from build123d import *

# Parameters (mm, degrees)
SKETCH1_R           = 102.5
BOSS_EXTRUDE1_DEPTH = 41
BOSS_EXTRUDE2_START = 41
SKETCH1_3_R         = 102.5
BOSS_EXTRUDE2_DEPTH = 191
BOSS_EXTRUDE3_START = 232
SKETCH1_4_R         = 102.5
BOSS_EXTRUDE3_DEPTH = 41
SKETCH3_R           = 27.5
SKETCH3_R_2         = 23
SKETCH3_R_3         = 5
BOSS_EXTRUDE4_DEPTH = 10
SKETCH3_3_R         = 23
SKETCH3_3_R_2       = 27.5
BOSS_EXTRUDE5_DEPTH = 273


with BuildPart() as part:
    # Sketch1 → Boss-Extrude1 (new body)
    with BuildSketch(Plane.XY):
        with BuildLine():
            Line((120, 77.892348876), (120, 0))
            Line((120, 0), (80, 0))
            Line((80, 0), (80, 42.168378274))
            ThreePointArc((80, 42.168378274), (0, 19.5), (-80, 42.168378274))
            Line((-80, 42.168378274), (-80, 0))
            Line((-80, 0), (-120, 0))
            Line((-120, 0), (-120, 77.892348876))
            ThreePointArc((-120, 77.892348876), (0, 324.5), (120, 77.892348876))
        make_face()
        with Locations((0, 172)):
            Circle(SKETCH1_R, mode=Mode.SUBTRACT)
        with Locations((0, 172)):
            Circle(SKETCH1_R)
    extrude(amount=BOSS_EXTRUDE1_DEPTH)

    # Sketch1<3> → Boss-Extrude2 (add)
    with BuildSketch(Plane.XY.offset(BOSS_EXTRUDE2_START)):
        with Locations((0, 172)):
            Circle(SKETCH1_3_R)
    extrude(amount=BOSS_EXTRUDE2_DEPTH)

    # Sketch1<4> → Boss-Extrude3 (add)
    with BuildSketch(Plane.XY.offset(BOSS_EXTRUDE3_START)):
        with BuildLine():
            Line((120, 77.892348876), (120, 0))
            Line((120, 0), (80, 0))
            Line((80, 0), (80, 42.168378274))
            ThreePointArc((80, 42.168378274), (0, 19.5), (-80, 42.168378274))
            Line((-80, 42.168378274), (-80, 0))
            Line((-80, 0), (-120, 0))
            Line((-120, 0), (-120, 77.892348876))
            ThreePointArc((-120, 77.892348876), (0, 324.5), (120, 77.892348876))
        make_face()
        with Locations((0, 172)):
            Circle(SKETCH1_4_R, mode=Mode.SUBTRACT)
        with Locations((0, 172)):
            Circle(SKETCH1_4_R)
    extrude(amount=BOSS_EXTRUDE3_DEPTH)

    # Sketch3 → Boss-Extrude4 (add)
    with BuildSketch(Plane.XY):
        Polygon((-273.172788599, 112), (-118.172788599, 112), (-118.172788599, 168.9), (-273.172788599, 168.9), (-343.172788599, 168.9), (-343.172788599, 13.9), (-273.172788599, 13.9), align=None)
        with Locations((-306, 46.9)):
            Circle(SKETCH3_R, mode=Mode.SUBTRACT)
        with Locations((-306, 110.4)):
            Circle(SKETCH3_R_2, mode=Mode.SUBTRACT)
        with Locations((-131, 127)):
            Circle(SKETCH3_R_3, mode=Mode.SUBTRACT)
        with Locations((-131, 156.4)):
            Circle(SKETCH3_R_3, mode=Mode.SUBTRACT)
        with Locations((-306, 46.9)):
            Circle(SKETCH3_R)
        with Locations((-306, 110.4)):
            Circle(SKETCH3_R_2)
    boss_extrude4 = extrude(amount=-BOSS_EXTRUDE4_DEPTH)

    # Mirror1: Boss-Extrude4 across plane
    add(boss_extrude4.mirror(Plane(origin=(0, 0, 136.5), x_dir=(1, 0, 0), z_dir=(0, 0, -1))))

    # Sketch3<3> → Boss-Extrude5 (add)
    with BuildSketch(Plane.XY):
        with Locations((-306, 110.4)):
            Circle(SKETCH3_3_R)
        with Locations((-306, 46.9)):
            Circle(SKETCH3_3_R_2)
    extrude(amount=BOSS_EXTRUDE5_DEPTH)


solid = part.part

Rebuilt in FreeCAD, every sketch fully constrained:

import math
import FreeCAD as App
import Part
import Sketcher
from FreeCAD import Vector
Q = App.Units.Quantity

doc = App.newDocument("Part")
body = doc.addObject("PartDesign::Body", "Body")

# Sketch on XY plane
sketch1 = body.newObject("Sketcher::SketchObject", "Sketch")
sketch1.AttachmentSupport = (doc.getObject("XY_Plane"), [""])
sketch1.MapMode = "FlatFace"
sketch1.addGeometry([
    Part.LineSegment(Vector(120, 0, 0), Vector(120, 78, 0)),  # 0
    Part.ArcOfCircle(Part.Circle(Vector(0, 172, 0), Vector(0, 0, 1), 152), math.radians(-38), math.radians(218)),  # 1
    Part.LineSegment(Vector(-120, 78, 0), Vector(-120, 0, 0)),  # 2
    Part.LineSegment(Vector(-120, 0, 0), Vector(-80, 0, 0)),  # 3
    Part.LineSegment(Vector(-80, 0, 0), Vector(-80, 42, 0)),  # 4
    Part.ArcOfCircle(Part.Circle(Vector(0, 172, 0), Vector(0, 0, 1), 152), math.radians(-122), math.radians(-58)),  # 5
    Part.LineSegment(Vector(80, 42, 0), Vector(80, 0, 0)),  # 6
    Part.LineSegment(Vector(80, 0, 0), Vector(120, 0, 0)),  # 7
], False)
sketch1.addConstraint([
    Sketcher.Constraint("Coincident", 0, 2, 1, 1),
    Sketcher.Constraint("Coincident", 1, 2, 2, 1),
    Sketcher.Constraint("Coincident", 2, 2, 3, 1),
    Sketcher.Constraint("Coincident", 3, 2, 4, 1),
    Sketcher.Constraint("Coincident", 4, 2, 5, 1),
    Sketcher.Constraint("Coincident", 5, 2, 6, 1),
    Sketcher.Constraint("Coincident", 6, 2, 7, 1),
    Sketcher.Constraint("Coincident", 7, 2, 0, 1),
    Sketcher.Constraint("Vertical", 0),
    Sketcher.Constraint("Vertical", 2),
    Sketcher.Constraint("Horizontal", 3),
    Sketcher.Constraint("Vertical", 4),
    Sketcher.Constraint("Vertical", 6),
    Sketcher.Constraint("Horizontal", 7),
    Sketcher.Constraint("Coincident", 5, 3, 1, 3),
    Sketcher.Constraint("Equal", 1, 5),
    Sketcher.Constraint("Symmetric", 3, 2, 6, 2, -1, 1),
    Sketcher.Constraint("Symmetric", 0, 2, 1, 2, -2),
    Sketcher.Constraint("PointOnObject", 2, 2, -1),
    Sketcher.Constraint("Radius", 1, Q("152.5 mm")),
    Sketcher.Constraint("DistanceX", 3, 1, 3, 2, Q("40 mm")),
    Sketcher.Constraint("DistanceY", -1, 1, 1, 3, Q("172 mm")),
    Sketcher.Constraint("DistanceX", -1, 1, 0, 2, Q("120 mm")),
])
pad1 = body.newObject("PartDesign::Pad", "Pad")
pad1.Profile = sketch1
pad1.Length = 41

# Sketch on XY plane
sketch2 = body.newObject("Sketcher::SketchObject", "Sketch001")
sketch2.AttachmentSupport = (doc.getObject("XY_Plane"), [""])
sketch2.MapMode = "FlatFace"
sketch2.AttachmentOffset = App.Placement(Vector(0, 0, 41), App.Rotation())
sketch2.addGeometry(Part.Circle(Vector(0, 172, 0), Vector(0, 0, 1), 102), False)
sketch2.addConstraint([
    Sketcher.Constraint("PointOnObject", 0, 3, -2),
    Sketcher.Constraint("Diameter", 0, Q("205 mm")),
    Sketcher.Constraint("DistanceY", -1, 1, 0, 3, Q("172 mm")),
])
pad2 = body.newObject("PartDesign::Pad", "Pad001")
pad2.Profile = sketch2
pad2.Length = 191

# Sketch on XY plane
sketch3 = body.newObject("Sketcher::SketchObject", "Sketch002")
sketch3.AttachmentSupport = (doc.getObject("XY_Plane"), [""])
sketch3.MapMode = "FlatFace"
sketch3.AttachmentOffset = App.Placement(Vector(0, 0, 232), App.Rotation())
sketch3.addGeometry([
    Part.LineSegment(Vector(120, 0, 0), Vector(120, 78, 0)),  # 0
    Part.ArcOfCircle(Part.Circle(Vector(0, 172, 0), Vector(0, 0, 1), 152), math.radians(-38), math.radians(218)),  # 1
    Part.LineSegment(Vector(-120, 78, 0), Vector(-120, 0, 0)),  # 2
    Part.LineSegment(Vector(-120, 0, 0), Vector(-80, 0, 0)),  # 3
    Part.LineSegment(Vector(-80, 0, 0), Vector(-80, 42, 0)),  # 4
    Part.ArcOfCircle(Part.Circle(Vector(0, 172, 0), Vector(0, 0, 1), 152), math.radians(-122), math.radians(-58)),  # 5
    Part.LineSegment(Vector(80, 42, 0), Vector(80, 0, 0)),  # 6
    Part.LineSegment(Vector(80, 0, 0), Vector(120, 0, 0)),  # 7
], False)
sketch3.addConstraint([
    Sketcher.Constraint("Coincident", 0, 2, 1, 1),
    Sketcher.Constraint("Coincident", 1, 2, 2, 1),
    Sketcher.Constraint("Coincident", 2, 2, 3, 1),
    Sketcher.Constraint("Coincident", 3, 2, 4, 1),
    Sketcher.Constraint("Coincident", 4, 2, 5, 1),
    Sketcher.Constraint("Coincident", 5, 2, 6, 1),
    Sketcher.Constraint("Coincident", 6, 2, 7, 1),
    Sketcher.Constraint("Coincident", 7, 2, 0, 1),
    Sketcher.Constraint("Vertical", 0),
    Sketcher.Constraint("Vertical", 2),
    Sketcher.Constraint("Horizontal", 3),
    Sketcher.Constraint("Vertical", 4),
    Sketcher.Constraint("Vertical", 6),
    Sketcher.Constraint("Horizontal", 7),
    Sketcher.Constraint("Coincident", 5, 3, 1, 3),
    Sketcher.Constraint("Equal", 1, 5),
    Sketcher.Constraint("Symmetric", 3, 2, 6, 2, -1, 1),
    Sketcher.Constraint("Symmetric", 0, 2, 1, 2, -2),
    Sketcher.Constraint("PointOnObject", 2, 2, -1),
    Sketcher.Constraint("Radius", 1, Q("152.5 mm")),
    Sketcher.Constraint("DistanceX", 3, 1, 3, 2, Q("40 mm")),
    Sketcher.Constraint("DistanceY", -1, 1, 1, 3, Q("172 mm")),
    Sketcher.Constraint("DistanceX", -1, 1, 0, 2, Q("120 mm")),
])
pad3 = body.newObject("PartDesign::Pad", "Pad002")
pad3.Profile = sketch3
pad3.Length = 41

# Sketch on XY plane
sketch4 = body.newObject("Sketcher::SketchObject", "Sketch003")
sketch4.AttachmentSupport = (doc.getObject("XY_Plane"), [""])
sketch4.MapMode = "FlatFace"
sketch4.addGeometry([
    Part.LineSegment(Vector(-273, 112, 0), Vector(-118, 112, 0)),  # 0
    Part.LineSegment(Vector(-118, 112, 0), Vector(-118, 169, 0)),  # 1
    Part.LineSegment(Vector(-118, 169, 0), Vector(-343, 169, 0)),  # 2
    Part.LineSegment(Vector(-343, 169, 0), Vector(-343, 14, 0)),  # 3
    Part.LineSegment(Vector(-343, 14, 0), Vector(-273, 14, 0)),  # 4
    Part.LineSegment(Vector(-273, 14, 0), Vector(-273, 112, 0)),  # 5
    Part.Circle(Vector(-131, 127, 0), Vector(0, 0, 1), 5),  # 6
    Part.Circle(Vector(-131, 156, 0), Vector(0, 0, 1), 5),  # 7
], False)
sketch4.addConstraint([
    Sketcher.Constraint("Coincident", 0, 2, 1, 1),
    Sketcher.Constraint("Coincident", 1, 2, 2, 1),
    Sketcher.Constraint("Coincident", 2, 2, 3, 1),
    Sketcher.Constraint("Coincident", 3, 2, 4, 1),
    Sketcher.Constraint("Coincident", 4, 2, 5, 1),
    Sketcher.Constraint("Coincident", 5, 2, 0, 1),
    Sketcher.Constraint("Horizontal", 0),
    Sketcher.Constraint("Vertical", 1),
    Sketcher.Constraint("Horizontal", 2),
    Sketcher.Constraint("Vertical", 3),
    Sketcher.Constraint("Horizontal", 4),
    Sketcher.Constraint("Vertical", 5),
    Sketcher.Constraint("Equal", 6, 7),
    Sketcher.Constraint("Vertical", 6, 3, 7, 3),
    Sketcher.Constraint("Equal", 0, 3),
    Sketcher.Constraint("Diameter", 6, Q("10 mm")),
    Sketcher.Constraint("DistanceX", 0, 1, 0, 2, Q("155 mm")),
    Sketcher.Constraint("DistanceX", 2, 2, 2, 1, Q("225 mm")),
    Sketcher.Constraint("DistanceY", 1, 1, 1, 2, Q("56.9 mm")),
    Sketcher.Constraint("DistanceX", 6, 3, -1, 1, Q("131 mm")),
    Sketcher.Constraint("DistanceY", -1, 1, 6, 3, Q("127 mm")),
    Sketcher.Constraint("DistanceY", -1, 1, 0, 2, Q("112 mm")),
    Sketcher.Constraint("DistanceY", -1, 1, 7, 3, Q("156.4 mm")),
    Sketcher.Constraint("DistanceX", 0, 2, -1, 1, Q("118.172789 mm")),
])
pad4 = body.newObject("PartDesign::Pad", "Pad003")
pad4.Profile = sketch4
pad4.Length = 10
pad4.Reversed = True
doc.recompute()

datumplane = body.newObject("PartDesign::Plane", "DatumPlane")
datumplane.AttachmentSupport = (doc.getObject("XY_Plane"), [""])
datumplane.MapMode = "FlatFace"
datumplane.AttachmentOffset = App.Placement(Vector(0, 0, 136.5), App.Rotation())
mirrored = body.newObject("PartDesign::Mirrored", "Mirrored")
mirrored.Originals = [pad4]
mirrored.MirrorPlane = (datumplane, [""])
body.Tip = mirrored

# Sketch on XY plane
sketch5 = body.newObject("Sketcher::SketchObject", "Sketch004")
sketch5.AttachmentSupport = (doc.getObject("XY_Plane"), [""])
sketch5.MapMode = "FlatFace"
sketch5.addGeometry([
    Part.Circle(Vector(-306, 110, 0), Vector(0, 0, 1), 23),
    Part.Circle(Vector(-306, 47, 0), Vector(0, 0, 1), 28),
], False)
sketch5.addConstraint([
    Sketcher.Constraint("Vertical", 0, 3, 1, 3),
    Sketcher.Constraint("Diameter", 0, Q("46 mm")),
    Sketcher.Constraint("Diameter", 1, Q("55 mm")),
    Sketcher.Constraint("DistanceX", 0, 3, -1, 1, Q("306 mm")),
    Sketcher.Constraint("DistanceY", -1, 1, 0, 3, Q("110.4 mm")),
    Sketcher.Constraint("DistanceY", -1, 1, 1, 3, Q("46.9 mm")),
])
pad5 = body.newObject("PartDesign::Pad", "Pad004")
pad5.Profile = sketch5
pad5.Length = 273

doc.recompute()
